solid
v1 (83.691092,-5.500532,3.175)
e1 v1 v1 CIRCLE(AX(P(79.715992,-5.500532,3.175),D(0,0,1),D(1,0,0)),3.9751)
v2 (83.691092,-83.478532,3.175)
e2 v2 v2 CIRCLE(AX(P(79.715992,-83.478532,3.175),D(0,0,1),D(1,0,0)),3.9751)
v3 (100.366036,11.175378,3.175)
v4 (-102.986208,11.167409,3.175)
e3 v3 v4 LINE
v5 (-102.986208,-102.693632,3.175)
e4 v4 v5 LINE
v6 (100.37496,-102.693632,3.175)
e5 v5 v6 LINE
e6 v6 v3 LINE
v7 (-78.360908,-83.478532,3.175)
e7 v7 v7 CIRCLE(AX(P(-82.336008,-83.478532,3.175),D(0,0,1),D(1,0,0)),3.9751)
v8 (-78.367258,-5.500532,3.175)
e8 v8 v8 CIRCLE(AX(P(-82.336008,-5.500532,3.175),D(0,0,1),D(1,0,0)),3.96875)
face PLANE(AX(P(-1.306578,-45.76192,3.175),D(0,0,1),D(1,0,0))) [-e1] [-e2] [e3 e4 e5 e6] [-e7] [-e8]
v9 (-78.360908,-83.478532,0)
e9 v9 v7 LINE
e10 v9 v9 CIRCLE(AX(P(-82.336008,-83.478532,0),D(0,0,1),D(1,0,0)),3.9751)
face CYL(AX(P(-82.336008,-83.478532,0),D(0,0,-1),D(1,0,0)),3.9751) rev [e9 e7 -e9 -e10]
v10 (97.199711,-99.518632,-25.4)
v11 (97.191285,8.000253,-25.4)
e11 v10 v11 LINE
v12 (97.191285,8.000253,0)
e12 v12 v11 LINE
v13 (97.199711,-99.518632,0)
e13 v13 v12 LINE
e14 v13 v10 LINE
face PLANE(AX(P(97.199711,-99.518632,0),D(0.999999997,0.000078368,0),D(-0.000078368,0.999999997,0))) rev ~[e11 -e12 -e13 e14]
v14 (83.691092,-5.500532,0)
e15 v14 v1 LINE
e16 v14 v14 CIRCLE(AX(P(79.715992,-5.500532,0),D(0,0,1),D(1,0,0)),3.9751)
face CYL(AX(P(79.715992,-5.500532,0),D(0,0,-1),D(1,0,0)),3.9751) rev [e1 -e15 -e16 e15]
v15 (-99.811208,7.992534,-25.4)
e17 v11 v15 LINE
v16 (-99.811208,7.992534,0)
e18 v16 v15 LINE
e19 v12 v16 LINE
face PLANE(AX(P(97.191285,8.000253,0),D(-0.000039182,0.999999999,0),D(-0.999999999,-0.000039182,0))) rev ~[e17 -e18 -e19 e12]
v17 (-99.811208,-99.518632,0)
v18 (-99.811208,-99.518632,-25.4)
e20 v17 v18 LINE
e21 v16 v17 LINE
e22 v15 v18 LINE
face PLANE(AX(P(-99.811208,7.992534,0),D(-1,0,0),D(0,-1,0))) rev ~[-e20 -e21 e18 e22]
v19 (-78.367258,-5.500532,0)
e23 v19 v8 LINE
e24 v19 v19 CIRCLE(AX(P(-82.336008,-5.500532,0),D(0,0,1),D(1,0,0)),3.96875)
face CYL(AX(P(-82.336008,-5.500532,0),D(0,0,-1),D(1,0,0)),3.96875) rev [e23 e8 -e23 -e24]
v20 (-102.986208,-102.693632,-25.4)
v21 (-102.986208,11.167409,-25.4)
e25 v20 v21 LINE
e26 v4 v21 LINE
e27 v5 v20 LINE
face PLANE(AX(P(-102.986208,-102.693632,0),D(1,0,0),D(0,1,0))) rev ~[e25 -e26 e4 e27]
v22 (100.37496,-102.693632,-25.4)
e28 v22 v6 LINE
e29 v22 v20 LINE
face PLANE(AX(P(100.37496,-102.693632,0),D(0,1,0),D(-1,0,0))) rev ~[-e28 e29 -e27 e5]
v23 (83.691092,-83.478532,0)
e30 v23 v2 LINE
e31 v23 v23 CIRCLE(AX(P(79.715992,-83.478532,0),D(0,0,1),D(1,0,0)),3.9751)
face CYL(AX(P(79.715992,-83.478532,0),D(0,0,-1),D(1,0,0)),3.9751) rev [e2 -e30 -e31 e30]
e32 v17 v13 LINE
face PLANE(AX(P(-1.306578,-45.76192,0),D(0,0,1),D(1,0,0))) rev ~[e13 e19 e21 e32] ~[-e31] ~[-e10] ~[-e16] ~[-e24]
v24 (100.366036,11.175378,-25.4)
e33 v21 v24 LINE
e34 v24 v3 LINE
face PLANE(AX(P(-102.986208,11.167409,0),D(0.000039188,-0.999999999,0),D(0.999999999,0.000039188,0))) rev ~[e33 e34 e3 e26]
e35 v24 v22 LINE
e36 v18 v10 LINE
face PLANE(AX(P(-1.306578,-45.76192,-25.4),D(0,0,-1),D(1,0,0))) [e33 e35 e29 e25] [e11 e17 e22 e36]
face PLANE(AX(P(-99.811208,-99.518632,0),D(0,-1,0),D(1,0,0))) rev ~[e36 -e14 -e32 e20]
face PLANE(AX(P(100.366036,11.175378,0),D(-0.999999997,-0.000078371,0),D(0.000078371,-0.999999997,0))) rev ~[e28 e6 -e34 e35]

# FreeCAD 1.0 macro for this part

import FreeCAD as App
import Part
import Sketcher
from FreeCAD import Vector
Q = App.Units.Quantity

doc = App.newDocument("Part")
body = doc.addObject("PartDesign::Body", "Body")

sketch1 = body.newObject("Sketcher::SketchObject", "Sketch")
sketch1.AttachmentSupport = (doc.getObject("XY_Plane"), [""])
sketch1.MapMode = "FlatFace"
sketch1.addGeometry(Part.LineSegment(Vector(-102.986208, 11.167409, 0), Vector(-102.986208, -102.693632, 0)), False)
sketch1.addGeometry(Part.LineSegment(Vector(-102.986208, -102.693632, 0), Vector(100.37496, -102.693632, 0)), False)
sketch1.addGeometry(Part.LineSegment(Vector(100.37496, -102.693632, 0), Vector(100.366036, 11.175378, 0)), False)
sketch1.addGeometry(Part.LineSegment(Vector(100.366036, 11.175378, 0), Vector(-102.986208, 11.167409, 0)), False)
sketch1.addGeometry(Part.Circle(Vector(-82.336008, -83.478532, 0), Vector(0, 0, 1), 3.9751), False)
sketch1.addGeometry(Part.Circle(Vector(79.715992, -83.478532, 0), Vector(0, 0, 1), 3.9751), False)
sketch1.addGeometry(Part.Circle(Vector(-82.336008, -5.500532, 0), Vector(0, 0, 1), 3.96875), False)
sketch1.addGeometry(Part.Circle(Vector(79.715992, -5.500532, 0), Vector(0, 0, 1), 3.9751), False)
sketch1.addConstraint(Sketcher.Constraint("Coincident", 0, 2, 1, 1))
sketch1.addConstraint(Sketcher.Constraint("Coincident", 1, 2, 2, 1))
sketch1.addConstraint(Sketcher.Constraint("Coincident", 2, 2, 3, 1))
sketch1.addConstraint(Sketcher.Constraint("Coincident", 3, 2, 0, 1))
sketch1.addConstraint(Sketcher.Constraint("Vertical", 0))
sketch1.addConstraint(Sketcher.Constraint("Horizontal", 1))
sketch1.addConstraint(Sketcher.Constraint("Equal", 4, 5))
sketch1.addConstraint(Sketcher.Constraint("Equal", 5, 7))
sketch1.addConstraint(Sketcher.Constraint("Horizontal", 4, 3, 5, 3))
sketch1.addConstraint(Sketcher.Constraint("Horizontal", 6, 3, 7, 3))
sketch1.addConstraint(Sketcher.Constraint("Vertical", 4, 3, 6, 3))
sketch1.addConstraint(Sketcher.Constraint("Vertical", 5, 3, 7, 3))
sketch1.addConstraint(Sketcher.Constraint("Diameter", 4, Q("0.313 in")))
sketch1.addConstraint(Sketcher.Constraint("Diameter", 6, Q("0.3125 in")))
sketch1.addConstraint(Sketcher.Constraint("DistanceX", 4, 3, 5, 3, Q("6.38 in")))
sketch1.addConstraint(Sketcher.Constraint("DistanceY", 4, 3, 6, 3, Q("3.07 in")))
sketch1.addConstraint(Sketcher.Constraint("DistanceX", 0, 2, 4, 3, Q("0.813 in")))
sketch1.addConstraint(Sketcher.Constraint("DistanceY", 0, 2, 4, 3, Q("0.7565 in")))
sketch1.addConstraint(Sketcher.Constraint("DistanceX", 1, 1, 1, 2, Q("203.361168 mm")))
sketch1.addConstraint(Sketcher.Constraint("DistanceY", 0, 2, 0, 1, Q("113.861041 mm")))
sketch1.addConstraint(Sketcher.Constraint("Distance", 2, Q("113.86901 mm")))
sketch1.addConstraint(Sketcher.Constraint("DistanceX", 4, 3, -1, 1, Q("82.336008 mm")))
sketch1.addConstraint(Sketcher.Constraint("DistanceY", 4, 3, -1, 1, Q("83.478532 mm")))
sketch1.addConstraint(Sketcher.Constraint("Distance", 3, Q("203.352244 mm")))
pad1 = body.newObject("PartDesign::Pad", "Pad")
pad1.Profile = sketch1
pad1.Length = Q("0.125 in")

sketch2 = body.newObject("Sketcher::SketchObject", "Sketch001")
sketch2.AttachmentSupport = (doc.getObject("XY_Plane"), [""])
sketch2.MapMode = "FlatFace"
sketch2.addGeometry(Part.LineSegment(Vector(100.37496, -102.693632, 0), Vector(-102.986208, -102.693632, 0)), False)
sketch2.addGeometry(Part.LineSegment(Vector(-102.986208, -102.693632, 0), Vector(-102.986208, 11.167409, 0)), False)
sketch2.addGeometry(Part.LineSegment(Vector(-102.986208, 11.167409, 0), Vector(100.366036, 11.175378, 0)), False)
sketch2.addGeometry(Part.LineSegment(Vector(100.366036, 11.175378, 0), Vector(100.37496, -102.693632, 0)), False)
sketch2.addGeometry(Part.LineSegment(Vector(97.191285, 8.000253, 0), Vector(-99.811208, 7.992534, 0)), False)
sketch2.addGeometry(Part.LineSegment(Vector(-99.811208, 7.992534, 0), Vector(-99.811208, -99.518632, 0)), False)
sketch2.addGeometry(Part.LineSegment(Vector(-99.811208, -99.518632, 0), Vector(97.199711, -99.518632, 0)), False)
sketch2.addGeometry(Part.LineSegment(Vector(97.199711, -99.518632, 0), Vector(97.191285, 8.000253, 0)), False)
sketch2.addConstraint(Sketcher.Constraint("Coincident", 0, 2, 1, 1))
sketch2.addConstraint(Sketcher.Constraint("Coincident", 1, 2, 2, 1))
sketch2.addConstraint(Sketcher.Constraint("Coincident", 2, 2, 3, 1))
sketch2.addConstraint(Sketcher.Constraint("Coincident", 3, 2, 0, 1))
sketch2.addConstraint(Sketcher.Constraint("Coincident", 4, 2, 5, 1))
sketch2.addConstraint(Sketcher.Constraint("Coincident", 5, 2, 6, 1))
sketch2.addConstraint(Sketcher.Constraint("Coincident", 6, 2, 7, 1))
sketch2.addConstraint(Sketcher.Constraint("Coincident", 7, 2, 4, 1))
sketch2.addConstraint(Sketcher.Constraint("Horizontal", 0))
sketch2.addConstraint(Sketcher.Constraint("Vertical", 1))
sketch2.addConstraint(Sketcher.Constraint("Vertical", 5))
sketch2.addConstraint(Sketcher.Constraint("Horizontal", 6))
sketch2.addConstraint(Sketcher.Constraint("Parallel", 2, 4))
sketch2.addConstraint(Sketcher.Constraint("Parallel", 3, 7))
sketch2.addConstraint(Sketcher.Constraint("DistanceX", 1, 2, 4, 2, Q("0.125 in")))
sketch2.addConstraint(Sketcher.Constraint("DistanceY", 0, 2, 5, 2, Q("0.125 in")))
sketch2.addConstraint(Sketcher.Constraint("DistanceX", 0, 2, 0, 1, Q("203.361168 mm")))
sketch2.addConstraint(Sketcher.Constraint("DistanceX", 6, 1, 6, 2, Q("197.010919 mm")))
sketch2.addConstraint(Sketcher.Constraint("DistanceY", 1, 1, 1, 2, Q("113.861041 mm")))
sketch2.addConstraint(Sketcher.Constraint("Distance", 3, Q("113.86901 mm")))
sketch2.addConstraint(Sketcher.Constraint("DistanceY", 5, 2, 5, 1, Q("107.511166 mm")))
sketch2.addConstraint(Sketcher.Constraint("DistanceX", 0, 2, -1, 1, Q("102.986208 mm")))
sketch2.addConstraint(Sketcher.Constraint("DistanceY", 0, 2, -1, 1, Q("102.693632 mm")))
sketch2.addConstraint(Sketcher.Constraint("DistanceX", 7, 2, 2, 2, Q("3.174751 mm")))
pad2 = body.newObject("PartDesign::Pad", "Pad001")
pad2.Profile = sketch2
pad2.Length = Q("1 in")
pad2.Reversed = True

doc.recompute()
